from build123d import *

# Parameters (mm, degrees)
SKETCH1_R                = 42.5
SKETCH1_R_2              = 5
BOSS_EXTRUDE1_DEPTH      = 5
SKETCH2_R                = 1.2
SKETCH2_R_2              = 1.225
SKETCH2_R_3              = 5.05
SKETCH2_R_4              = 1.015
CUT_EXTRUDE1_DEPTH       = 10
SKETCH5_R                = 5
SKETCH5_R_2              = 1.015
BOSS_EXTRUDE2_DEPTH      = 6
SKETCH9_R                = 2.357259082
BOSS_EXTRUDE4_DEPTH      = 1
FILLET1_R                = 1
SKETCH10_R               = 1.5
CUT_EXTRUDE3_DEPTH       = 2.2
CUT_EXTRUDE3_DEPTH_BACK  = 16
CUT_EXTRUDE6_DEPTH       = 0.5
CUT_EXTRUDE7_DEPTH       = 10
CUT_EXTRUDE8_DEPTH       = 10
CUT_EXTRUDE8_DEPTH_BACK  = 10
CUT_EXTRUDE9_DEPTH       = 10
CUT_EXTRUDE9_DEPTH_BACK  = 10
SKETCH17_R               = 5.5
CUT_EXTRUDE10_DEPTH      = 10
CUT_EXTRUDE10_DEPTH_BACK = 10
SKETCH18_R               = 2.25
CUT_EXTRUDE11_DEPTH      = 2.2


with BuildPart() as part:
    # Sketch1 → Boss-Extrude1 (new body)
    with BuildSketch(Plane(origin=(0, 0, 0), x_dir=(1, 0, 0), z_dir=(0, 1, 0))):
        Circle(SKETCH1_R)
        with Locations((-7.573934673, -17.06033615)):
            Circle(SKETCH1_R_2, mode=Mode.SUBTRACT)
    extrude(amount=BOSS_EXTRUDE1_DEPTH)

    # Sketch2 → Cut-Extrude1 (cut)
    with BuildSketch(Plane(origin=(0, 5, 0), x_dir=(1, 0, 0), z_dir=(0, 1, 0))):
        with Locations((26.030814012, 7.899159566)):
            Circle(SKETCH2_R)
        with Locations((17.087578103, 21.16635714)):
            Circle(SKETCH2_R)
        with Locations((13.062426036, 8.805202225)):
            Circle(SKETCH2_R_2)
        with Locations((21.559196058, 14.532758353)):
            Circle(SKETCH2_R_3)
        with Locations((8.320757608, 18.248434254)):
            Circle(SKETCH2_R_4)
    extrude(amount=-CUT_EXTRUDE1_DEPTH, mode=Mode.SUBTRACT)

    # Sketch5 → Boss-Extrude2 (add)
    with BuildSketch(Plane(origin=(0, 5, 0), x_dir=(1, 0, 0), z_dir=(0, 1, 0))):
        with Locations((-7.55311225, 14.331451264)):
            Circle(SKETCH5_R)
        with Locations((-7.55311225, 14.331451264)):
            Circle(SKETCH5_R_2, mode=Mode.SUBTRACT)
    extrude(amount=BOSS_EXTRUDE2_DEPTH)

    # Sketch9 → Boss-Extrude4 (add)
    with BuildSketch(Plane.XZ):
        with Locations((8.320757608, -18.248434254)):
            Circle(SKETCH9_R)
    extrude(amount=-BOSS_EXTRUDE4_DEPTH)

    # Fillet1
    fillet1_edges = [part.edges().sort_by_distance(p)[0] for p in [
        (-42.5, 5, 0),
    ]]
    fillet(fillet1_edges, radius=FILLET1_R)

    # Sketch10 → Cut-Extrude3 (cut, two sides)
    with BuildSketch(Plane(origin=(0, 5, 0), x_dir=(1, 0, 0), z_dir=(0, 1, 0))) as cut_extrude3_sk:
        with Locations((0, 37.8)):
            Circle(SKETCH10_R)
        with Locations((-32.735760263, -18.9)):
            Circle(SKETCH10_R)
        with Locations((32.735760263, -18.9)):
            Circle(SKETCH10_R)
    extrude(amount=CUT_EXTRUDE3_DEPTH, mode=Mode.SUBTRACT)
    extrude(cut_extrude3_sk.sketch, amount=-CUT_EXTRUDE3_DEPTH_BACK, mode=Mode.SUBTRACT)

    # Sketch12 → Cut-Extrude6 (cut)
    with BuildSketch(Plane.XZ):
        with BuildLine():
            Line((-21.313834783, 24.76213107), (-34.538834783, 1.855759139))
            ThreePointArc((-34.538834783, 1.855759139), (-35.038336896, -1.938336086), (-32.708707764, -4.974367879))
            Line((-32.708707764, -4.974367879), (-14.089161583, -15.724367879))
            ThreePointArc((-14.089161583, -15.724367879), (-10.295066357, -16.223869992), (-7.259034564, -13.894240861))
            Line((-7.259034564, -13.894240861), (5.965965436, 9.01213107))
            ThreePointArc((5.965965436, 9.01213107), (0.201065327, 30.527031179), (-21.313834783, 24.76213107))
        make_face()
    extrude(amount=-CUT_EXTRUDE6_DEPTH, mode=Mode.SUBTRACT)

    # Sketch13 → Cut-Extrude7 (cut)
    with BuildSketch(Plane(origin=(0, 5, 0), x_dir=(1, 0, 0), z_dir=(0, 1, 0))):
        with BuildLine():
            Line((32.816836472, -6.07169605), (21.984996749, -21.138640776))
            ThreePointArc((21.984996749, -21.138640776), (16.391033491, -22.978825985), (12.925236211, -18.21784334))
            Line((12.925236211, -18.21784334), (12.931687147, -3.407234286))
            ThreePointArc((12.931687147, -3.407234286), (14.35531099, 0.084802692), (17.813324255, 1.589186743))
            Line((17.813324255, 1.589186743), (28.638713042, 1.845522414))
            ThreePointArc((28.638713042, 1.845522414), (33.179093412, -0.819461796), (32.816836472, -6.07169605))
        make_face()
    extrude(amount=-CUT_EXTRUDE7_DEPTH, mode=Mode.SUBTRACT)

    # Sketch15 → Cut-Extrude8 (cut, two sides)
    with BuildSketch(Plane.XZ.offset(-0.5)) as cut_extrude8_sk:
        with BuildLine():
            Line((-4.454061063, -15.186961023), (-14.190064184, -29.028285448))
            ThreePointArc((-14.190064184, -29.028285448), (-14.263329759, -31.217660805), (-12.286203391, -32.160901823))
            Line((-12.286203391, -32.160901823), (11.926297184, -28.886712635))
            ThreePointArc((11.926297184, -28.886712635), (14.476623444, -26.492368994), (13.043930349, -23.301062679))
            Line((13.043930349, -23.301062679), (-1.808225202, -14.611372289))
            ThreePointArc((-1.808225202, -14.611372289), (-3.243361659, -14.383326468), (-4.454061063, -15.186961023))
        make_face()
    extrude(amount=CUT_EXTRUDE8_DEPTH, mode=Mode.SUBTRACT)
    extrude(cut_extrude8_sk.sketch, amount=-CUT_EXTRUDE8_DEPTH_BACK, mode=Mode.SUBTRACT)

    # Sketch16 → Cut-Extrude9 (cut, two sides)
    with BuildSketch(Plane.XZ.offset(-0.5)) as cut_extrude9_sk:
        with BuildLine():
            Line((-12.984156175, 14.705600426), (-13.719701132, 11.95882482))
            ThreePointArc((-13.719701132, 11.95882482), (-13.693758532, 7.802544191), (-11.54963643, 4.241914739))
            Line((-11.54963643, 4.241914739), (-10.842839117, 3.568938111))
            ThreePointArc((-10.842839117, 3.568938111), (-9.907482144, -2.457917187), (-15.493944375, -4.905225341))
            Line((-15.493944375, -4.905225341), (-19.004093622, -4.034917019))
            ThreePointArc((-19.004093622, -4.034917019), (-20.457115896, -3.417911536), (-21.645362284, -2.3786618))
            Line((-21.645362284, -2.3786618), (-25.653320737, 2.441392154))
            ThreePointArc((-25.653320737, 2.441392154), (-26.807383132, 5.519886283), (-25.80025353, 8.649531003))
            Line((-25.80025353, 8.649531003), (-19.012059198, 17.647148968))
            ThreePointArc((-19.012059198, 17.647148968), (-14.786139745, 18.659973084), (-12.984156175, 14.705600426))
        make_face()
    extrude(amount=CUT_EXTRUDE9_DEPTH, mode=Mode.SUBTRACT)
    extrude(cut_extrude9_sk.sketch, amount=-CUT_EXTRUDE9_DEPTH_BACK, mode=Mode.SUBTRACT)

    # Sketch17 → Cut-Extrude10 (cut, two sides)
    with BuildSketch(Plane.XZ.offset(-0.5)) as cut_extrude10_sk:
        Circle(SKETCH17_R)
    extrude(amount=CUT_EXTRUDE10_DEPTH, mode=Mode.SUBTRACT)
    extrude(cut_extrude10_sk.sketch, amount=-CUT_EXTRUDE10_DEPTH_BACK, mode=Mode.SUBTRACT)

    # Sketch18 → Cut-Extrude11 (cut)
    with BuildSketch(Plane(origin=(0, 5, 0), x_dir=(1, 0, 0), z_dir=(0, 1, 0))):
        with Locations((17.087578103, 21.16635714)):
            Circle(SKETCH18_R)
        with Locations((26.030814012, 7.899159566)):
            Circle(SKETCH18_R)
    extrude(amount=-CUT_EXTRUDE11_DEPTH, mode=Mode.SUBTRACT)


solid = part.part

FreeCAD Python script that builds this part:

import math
import FreeCAD as App
import Part
import Sketcher
Q = App.Units.Quantity


def edges_at(feature, points):
    """Names of the edges that pass closest to the given points."""
    edges = feature.Shape.Edges
    near = lambda p: min(range(len(edges)), key=lambda i: edges[i].distToShape(Part.Vertex(*p))[0])
    return sorted({f"Edge{near(p) + 1}" for p in points})

doc = App.newDocument("Part")
params = doc.addObject("Spreadsheet::Sheet", "Params")
for row, (alias, value) in enumerate([
    ("sketch1_diameter", "85 mm"),
    ("sketch1_diameter2", "10 mm"),
    ("pad1_length", "5 mm"),
    ("sketch2_diameter", "2.4 mm"),
    ("sketch2_diameter2", "10.1 mm"),
    ("sketch2_diameter3", "2.45 mm"),
    ("sketch2_diameter4", "2.03 mm"),
    ("pocket1_length", "10 mm"),
    ("sketch3_diameter", "10 mm"),
    ("sketch3_diameter2", "2.03 mm"),
    ("pad2_length", "6 mm"),
    ("pad3_length", "1 mm"),
    ("fillet_radius", "1 mm"),
    ("sketch5_diameter", "3 mm"),
    ("sketch6_radius", "5 mm"),
    ("sketch6_radius2", "15.75 mm"),
    ("sketch6_length", "26.45 mm"),
    ("pocket3_length", "0.5 mm"),
    ("sketch7_radius", "5 mm"),
    ("pocket4_length", "10 mm"),
    ("sketch8_radius", "2 mm"),
    ("sketch8_radius2", "2 mm"),
    ("pocket5_length", "10 mm"),
    ("pocket5_length2", "10 mm"),
    ("sketch9_radius", "5 mm"),
    ("sketch10_diameter", "11 mm"),
    ("sketch11_diameter", "4.5 mm"),
    ("pocket8_length", "2.2 mm"),
], start=1):
    params.set(f"A{row}", alias)
    params.set(f"B{row}", "=" + value)
    params.setAlias(f"B{row}", alias)

body = doc.addObject("PartDesign::Body", "Body")

# Sketch on XZ plane
sketch1 = body.newObject("Sketcher::SketchObject", "Sketch")
sketch1.AttachmentSupport = (doc.getObject("XZ_Plane"), [""])
sketch1.MapMode = "FlatFace"
sketch1.addGeometry([
    Part.Circle(App.Vector(0, 0, 0), App.Vector(0, 0, 1), 42),
    Part.Circle(App.Vector(-8, 17, 0), App.Vector(0, 0, 1), 5),
], False)
sketch1.addConstraint([
    Sketcher.Constraint("Coincident", 0, 3, -1, 1),
    Sketcher.Constraint("Diameter", 0, 85.0),
    Sketcher.Constraint("Diameter", 1, 10.0),
    Sketcher.Constraint("DistanceX", 1, 3, -1, 1, 7.573935),
    Sketcher.Constraint("DistanceY", -1, 1, 1, 3, 17.060336),
])
sketch1.setExpression("Constraints[1]", "Params.sketch1_diameter")
sketch1.setExpression("Constraints[2]", "Params.sketch1_diameter2")
pad1 = body.newObject("PartDesign::Pad", "Pad")
pad1.Profile = sketch1
pad1.setExpression("Length", "Params.pad1_length")
pad1.Reversed = True

# Sketch on XZ plane
sketch2 = body.newObject("Sketcher::SketchObject", "Sketch001")
sketch2.AttachmentSupport = (doc.getObject("XZ_Plane"), [""])
sketch2.MapMode = "FlatFace"
sketch2.AttachmentOffset = App.Placement(App.Vector(0, 0, -5), App.Rotation())
sketch2.addGeometry([
    Part.Circle(App.Vector(26, -7.9, 0), App.Vector(0, 0, 1), 1.2),  # 0
    Part.Circle(App.Vector(17.1, -21.2, 0), App.Vector(0, 0, 1), 1.2),  # 1
    Part.Circle(App.Vector(13.1, -8.8, 0), App.Vector(0, 0, 1), 1.2),  # 2
    Part.Circle(App.Vector(21.6, -14.5, 0), App.Vector(0, 0, 1), 5),  # 3
    Part.Circle(App.Vector(8.3, -18.2, 0), App.Vector(0, 0, 1), 1),  # 4
], False)
sketch2.addConstraint([
    Sketcher.Constraint("Equal", 0, 1),
    Sketcher.Constraint("Diameter", 0, 2.4),
    Sketcher.Constraint("Diameter", 3, 10.1),
    Sketcher.Constraint("Diameter", 2, 2.45),
    Sketcher.Constraint("Diameter", 4, 2.03),
    Sketcher.Constraint("DistanceY", 3, 3, 0, 3, 6.633599),
    Sketcher.Constraint("DistanceY", 1, 3, 3, 3, 6.633599),
    Sketcher.Constraint("DistanceY", 0, 3, -1, 1, 7.89916),
    Sketcher.Constraint("DistanceX", -1, 1, 1, 3, 17.087578),
    Sketcher.Constraint("DistanceX", 2, 3, 3, 3, 8.49677),
    Sketcher.Constraint("DistanceX", 4, 3, 1, 3, 8.76682),
    Sketcher.Constraint("DistanceX", 4, 3, 2, 3, 4.741668),
    Sketcher.Constraint("DistanceX", -1, 1, 0, 3, 26.030814),
    Sketcher.Constraint("DistanceY", 2, 3, -1, 1, 8.805202),
    Sketcher.Constraint("DistanceY", 4, 3, -1, 1, 18.248434),
])
sketch2.setExpression("Constraints[1]", "Params.sketch2_diameter")
sketch2.setExpression("Constraints[2]", "Params.sketch2_diameter2")
sketch2.setExpression("Constraints[3]", "Params.sketch2_diameter3")
sketch2.setExpression("Constraints[4]", "Params.sketch2_diameter4")
pocket1 = body.newObject("PartDesign::Pocket", "Pocket")
pocket1.Profile = sketch2
pocket1.setExpression("Length", "Params.pocket1_length")
pocket1.Reversed = True

# Sketch on XZ plane
sketch3 = body.newObject("Sketcher::SketchObject", "Sketch002")
sketch3.AttachmentSupport = (doc.getObject("XZ_Plane"), [""])
sketch3.MapMode = "FlatFace"
sketch3.AttachmentOffset = App.Placement(App.Vector(0, 0, -5), App.Rotation())
sketch3.addGeometry([
    Part.Circle(App.Vector(-7.6, -14.3, 0), App.Vector(0, 0, 1), 5),
    Part.Circle(App.Vector(-7.6, -14.3, 0), App.Vector(0, 0, 1), 1),
], False)
sketch3.addConstraint([
    Sketcher.Constraint("Coincident", 1, 3, 0, 3),
    Sketcher.Constraint("Diameter", 0, 10.0),
    Sketcher.Constraint("Diameter", 1, 2.03),
    Sketcher.Constraint("DistanceY", 0, 3, -1, 1, 14.331451),
    Sketcher.Constraint("DistanceX", 0, 3, -1, 1, 7.553112),
])
sketch3.setExpression("Constraints[1]", "Params.sketch3_diameter")
sketch3.setExpression("Constraints[2]", "Params.sketch3_diameter2")
pad2 = body.newObject("PartDesign::Pad", "Pad001")
pad2.Profile = sketch3
pad2.setExpression("Length", "Params.pad2_length")
pad2.Reversed = True

# Sketch on XZ plane
sketch4 = body.newObject("Sketcher::SketchObject", "Sketch003")
sketch4.AttachmentSupport = (doc.getObject("XZ_Plane"), [""])
sketch4.MapMode = "FlatFace"
sketch4.addGeometry(Part.Circle(App.Vector(8.3, -18.2, 0), App.Vector(0, 0, 1), 2.4), False)
sketch4.addConstraint([
    Sketcher.Constraint("Diameter", 0, 4.714518),
    Sketcher.Constraint("DistanceX", -1, 1, 0, 3, 8.320758),
    Sketcher.Constraint("DistanceY", 0, 3, -1, 1, 18.248434),
])
pad3 = body.newObject("PartDesign::Pad", "Pad002")
pad3.Profile = sketch4
pad3.setExpression("Length", "Params.pad3_length")
pad3.Reversed = True
doc.recompute()

fillet = body.newObject("PartDesign::Fillet", "Fillet")
fillet.Base = (pad3, edges_at(pad3, [(-42.5, 5, 0)]))
fillet.setExpression("Radius", "Params.fillet_radius")

# Sketch on XZ plane
sketch5 = body.newObject("Sketcher::SketchObject", "Sketch004")
sketch5.AttachmentSupport = (doc.getObject("XZ_Plane"), [""])
sketch5.MapMode = "FlatFace"
sketch5.AttachmentOffset = App.Placement(App.Vector(0, 0, -5), App.Rotation())
sketch5.addGeometry([
    Part.Circle(App.Vector(0, -37.8, 0), App.Vector(0, 0, 1), 1.5),
    Part.Circle(App.Vector(-32.7, 18.9, 0), App.Vector(0, 0, 1), 1.5),
    Part.Circle(App.Vector(32.7, 18.9, 0), App.Vector(0, 0, 1), 1.5),
], False)
sketch5.addConstraint([
    Sketcher.Constraint("Equal", 0, 1),
    Sketcher.Constraint("Equal", 1, 2),
    Sketcher.Constraint("Symmetric", 1, 3, 2, 3, -2),
    Sketcher.Constraint("PointOnObject", 0, 3, -2),
    Sketcher.Constraint("Diameter", 0, 3.0),
    Sketcher.Constraint("DistanceY", 0, 3, -1, 1, 37.8),
    Sketcher.Constraint("DistanceY", -1, 1, 1, 3, 18.9),
    Sketcher.Constraint("DistanceX", 1, 3, -1, 1, 32.73576),
])
sketch5.setExpression("Constraints[4]", "Params.sketch5_diameter")
pocket2 = body.newObject("PartDesign::Pocket", "Pocket001")
pocket2.Profile = sketch5
pocket2.Type = "ThroughAll"
pocket2.Midplane = True

# Sketch on XZ plane
sketch6 = body.newObject("Sketcher::SketchObject", "Sketch005")
sketch6.AttachmentSupport = (doc.getObject("XZ_Plane"), [""])
sketch6.MapMode = "FlatFace"
sketch6.addGeometry([
    Part.LineSegment(App.Vector(-21.3, 24.8, 0), App.Vector(-34.5, 1.9, 0)),  # 0
    Part.ArcOfCircle(Part.Circle(App.Vector(-30.2, -0.6, 0), App.Vector(0, 0, 1), 5), math.radians(150), math.radians(240)),  # 1
    Part.LineSegment(App.Vector(-32.7, -5, 0), App.Vector(-14.1, -15.7, 0)),  # 2
    Part.ArcOfCircle(Part.Circle(App.Vector(-11.6, -11.4, 0), App.Vector(0, 0, 1), 5), math.radians(-120), math.radians(-30)),  # 3
    Part.LineSegment(App.Vector(-7.3, -13.9, 0), App.Vector(6, 9, 0)),  # 4
    Part.ArcOfCircle(Part.Circle(App.Vector(-7.7, 16.9, 0), App.Vector(0, 0, 1), 15.8), math.radians(-30), math.radians(150)),  # 5
], False)
sketch6.addConstraint([
    Sketcher.Constraint("Tangent", 0, 2, 1, 1),
    Sketcher.Constraint("Tangent", 1, 2, 2, 1),
    Sketcher.Constraint("Tangent", 2, 2, 3, 1),
    Sketcher.Constraint("Tangent", 3, 2, 4, 1),
    Sketcher.Constraint("Tangent", 4, 2, 5, 1),
    Sketcher.Constraint("Tangent", 5, 2, 0, 1),
    Sketcher.Constraint("Equal", 1, 3),
    Sketcher.Constraint("Perpendicular", 0, 2),
    Sketcher.Constraint("Perpendicular", 2, 4),
    Sketcher.Constraint("Radius", 1, 5.0),
    Sketcher.Constraint("Angle", 0, Q("-120 deg")),
    Sketcher.Constraint("Radius", 5, 15.75),
    Sketcher.Constraint("Distance", 0, 26.45),
    Sketcher.Constraint("DistanceY", 1, 3, -1, 1, 0.644241),
    Sketcher.Constraint("DistanceX", 3, 3, -1, 1, 11.589162),
])
sketch6.setExpression("Constraints[9]", "Params.sketch6_radius")
sketch6.setExpression("Constraints[11]", "Params.sketch6_radius2")
sketch6.setExpression("Constraints[12]", "Params.sketch6_length")
pocket3 = body.newObject("PartDesign::Pocket", "Pocket002")
pocket3.Profile = sketch6
pocket3.setExpression("Length", "Params.pocket3_length")

# Sketch on XZ plane
sketch7 = body.newObject("Sketcher::SketchObject", "Sketch006")
sketch7.AttachmentSupport = (doc.getObject("XZ_Plane"), [""])
sketch7.MapMode = "FlatFace"
sketch7.AttachmentOffset = App.Placement(App.Vector(0, 0, -5), App.Rotation())
sketch7.addGeometry([
    Part.LineSegment(App.Vector(22, 21, 0), App.Vector(33, 6, 0)),  # 0
    Part.ArcOfCircle(Part.Circle(App.Vector(29, 3, 0), App.Vector(0, 0, 1), 5), math.radians(-91), math.radians(36)),  # 1
    Part.LineSegment(App.Vector(29, -2, 0), App.Vector(18, -2, 0)),  # 2
    Part.ArcOfCircle(Part.Circle(App.Vector(18, 3, 0), App.Vector(0, 0, 1), 5), math.radians(-180), math.radians(-91)),  # 3
    Part.LineSegment(App.Vector(13, 3, 0), App.Vector(13, 18, 0)),  # 4
    Part.ArcOfCircle(Part.Circle(App.Vector(18, 18, 0), App.Vector(0, 0, 1), 5), math.radians(36), math.radians(180)),  # 5
], False)
sketch7.addConstraint([
    Sketcher.Constraint("Tangent", 0, 2, 1, 2),
    Sketcher.Constraint("Tangent", 1, 1, 2, 1),
    Sketcher.Constraint("Tangent", 2, 2, 3, 2),
    Sketcher.Constraint("Tangent", 3, 1, 4, 1),
    Sketcher.Constraint("Tangent", 4, 2, 5, 2),
    Sketcher.Constraint("Tangent", 5, 1, 0, 1),
    Sketcher.Constraint("Equal", 1, 3),
    Sketcher.Constraint("Equal", 3, 5),
    Sketcher.Constraint("Radius", 1, 5.0),
    Sketcher.Constraint("DistanceX", 5, 3, 0, 2, 14.891601),
    Sketcher.Constraint("DistanceY", 1, 1, 1, 3, 4.998599),
    Sketcher.Constraint("Distance", 4, 14.81061),
    Sketcher.Constraint("DistanceY", -1, 1, 5, 3, 18.220021),
    Sketcher.Constraint("DistanceX", 3, 3, 1, 3, 10.825389),
    Sketcher.Constraint("DistanceX", -1, 1, 1, 3, 28.757075),
])
sketch7.setExpression("Constraints[8]", "Params.sketch7_radius")
pocket4 = body.newObject("PartDesign::Pocket", "Pocket003")
pocket4.Profile = sketch7
pocket4.setExpression("Length", "Params.pocket4_length")
pocket4.Reversed = True

# Sketch on XZ plane
sketch8 = body.newObject("Sketcher::SketchObject", "Sketch007")
sketch8.AttachmentSupport = (doc.getObject("XZ_Plane"), [""])
sketch8.MapMode = "FlatFace"
sketch8.AttachmentOffset = App.Placement(App.Vector(0, 0, -0.5), App.Rotation())
sketch8.addGeometry([
    Part.LineSegment(App.Vector(-4.454061, -15.186961, 0), App.Vector(-14.190064, -29.028285, 0)),  # 0
    Part.ArcOfCircle(Part.Circle(App.Vector(-12.554218, -30.178941, 0), App.Vector(0, 0, 1), 2), math.radians(144.877404), math.radians(277.701233)),  # 1
    Part.LineSegment(App.Vector(-12.286203, -32.160902, 0), App.Vector(11.926297, -28.886713, 0)),  # 2
    Part.ArcOfCircle(Part.Circle(App.Vector(11.522588, -25.901296, 0), App.Vector(0, 0, 1), 3.01259), math.radians(-82.298767), math.radians(59.668976)),  # 3
    Part.LineSegment(App.Vector(13.04393, -23.301063, 0), App.Vector(-1.808225, -14.611372, 0)),  # 4
    Part.ArcOfCircle(Part.Circle(App.Vector(-2.818215, -16.337617, 0), App.Vector(0, 0, 1), 2), math.radians(59.668976), math.radians(144.877403)),  # 5
], False)
sketch8.addConstraint([
    Sketcher.Constraint("Coincident", 0, 2, 1, 1),
    Sketcher.Constraint("Coincident", 1, 2, 2, 1),
    Sketcher.Constraint("Coincident", 2, 2, 3, 1),
    Sketcher.Constraint("Coincident", 3, 2, 4, 1),
    Sketcher.Constraint("Coincident", 4, 2, 5, 1),
    Sketcher.Constraint("Coincident", 5, 2, 0, 1),
    Sketcher.Constraint("Radius", 1, 2.0),
    Sketcher.Constraint("Radius", 5, 2.0),
    Sketcher.Constraint("Radius", 3, 3.01259),
    Sketcher.Constraint("DistanceY", 1, 2, -1, 1, 32.160902),
    Sketcher.Constraint("DistanceX", 1, 2, 2, 2, 24.212501),
    Sketcher.Constraint("Distance", 0, 16.92253),
    Sketcher.Constraint("DistanceX", 1, 3, -1, 1, 12.554218),
    Sketcher.Constraint("DistanceY", 1, 3, -1, 1, 30.178941),
    Sketcher.Constraint("DistanceX", -1, 1, 3, 2, 13.04393),
    Sketcher.Constraint("DistanceX", 5, 2, -1, 1, 4.454061),
    Sketcher.Constraint("DistanceY", 5, 2, -1, 1, 15.186961),
    Sketcher.Constraint("DistanceY", 3, 3, 5, 3, 9.563679),
    Sketcher.Constraint("DistanceX", 0, 2, 5, 3, 11.371849),
    Sketcher.Constraint("DistanceX", 0, 2, 3, 3, 25.712652),
    Sketcher.Constraint("DistanceX", 5, 3, 4, 2, 1.00999),
])
sketch8.setExpression("Constraints[6]", "Params.sketch8_radius")
sketch8.setExpression("Constraints[7]", "Params.sketch8_radius2")
pocket5 = body.newObject("PartDesign::Pocket", "Pocket004")
pocket5.Profile = sketch8
pocket5.Type = "TwoLengths"
pocket5.setExpression("Length", "Params.pocket5_length")
pocket5.setExpression("Length2", "Params.pocket5_length2")
pocket5.Reversed = True

# Sketch on XZ plane
sketch9 = body.newObject("Sketcher::SketchObject", "Sketch008")
sketch9.AttachmentSupport = (doc.getObject("XZ_Plane"), [""])
sketch9.MapMode = "FlatFace"
sketch9.AttachmentOffset = App.Placement(App.Vector(0, 0, -0.5), App.Rotation())
sketch9.addGeometry([
    Part.LineSegment(App.Vector(-13.7, 12, 0), App.Vector(-13, 14.7, 0)),  # 0
    Part.ArcOfCircle(Part.Circle(App.Vector(-16.3, 15.6, 0), App.Vector(0, 0, 1), 3.4), math.radians(-15), math.radians(143)),  # 1
    Part.LineSegment(App.Vector(-19, 17.6, 0), App.Vector(-25.8, 8.6, 0)),  # 2
    Part.ArcOfCircle(Part.Circle(App.Vector(-21.8, 5.6, 0), App.Vector(0, 0, 1), 5), math.radians(143), math.radians(220)),  # 3
    Part.LineSegment(App.Vector(-25.7, 2.4, 0), App.Vector(-21.6, -2.4, 0)),  # 4
    Part.ArcOfCircle(Part.Circle(App.Vector(-17.8, 0.8, 0), App.Vector(0, 0, 1), 5), math.radians(-140), math.radians(-104)),  # 5
    Part.LineSegment(App.Vector(-19, -4, 0), App.Vector(-15.5, -4.9, 0)),  # 6
    Part.ArcOfCircle(Part.Circle(App.Vector(-14.3, -0.1, 0), App.Vector(0, 0, 1), 5), math.radians(-104), math.radians(46)),  # 7
    Part.LineSegment(App.Vector(-10.8, 3.6, 0), App.Vector(-11.5, 4.2, 0)),  # 8
    Part.ArcOfCircle(Part.Circle(App.Vector(-6.1, 9.9, 0), App.Vector(0, 0, 1), 7.9), math.radians(165), math.radians(226)),  # 9
], False)
sketch9.addConstraint([
    Sketcher.Constraint("Tangent", 0, 2, 1, 1),
    Sketcher.Constraint("Tangent", 1, 2, 2, 1),
    Sketcher.Constraint("Tangent", 2, 2, 3, 1),
    Sketcher.Constraint("Tangent", 3, 2, 4, 1),
    Sketcher.Constraint("Tangent", 4, 2, 5, 1),
    Sketcher.Constraint("Tangent", 5, 2, 6, 1),
    Sketcher.Constraint("Tangent", 6, 2, 7, 1),
    Sketcher.Constraint("Tangent", 7, 2, 8, 1),
    Sketcher.Constraint("Tangent", 8, 2, 9, 2),
    Sketcher.Constraint("Tangent", 9, 1, 0, 1),
    Sketcher.Constraint("Equal", 3, 5),
    Sketcher.Constraint("Equal", 5, 7),
    Sketcher.Constraint("Radius", 3, 5.0),
    Sketcher.Constraint("Radius", 1, 3.416676),
    Sketcher.Constraint("Radius", 9, 7.851224),
    Sketcher.Constraint("DistanceY", -1, 1, 0, 2, 14.7056),
    Sketcher.Constraint("DistanceX", 9, 1, -1, 1, 13.719701),
    Sketcher.Constraint("DistanceY", 3, 2, 3, 3, 3.1968),
    Sketcher.Constraint("DistanceY", 5, 3, 7, 2, 2.7508),
    Sketcher.Constraint("Distance", 8, 0.975941),
    Sketcher.Constraint("DistanceY", -1, 1, 3, 3, 5.638192),
    Sketcher.Constraint("DistanceY", -1, 1, 5, 3, 0.818138),
    Sketcher.Constraint("DistanceY", 7, 3, -1, 1, 0.05217),
    Sketcher.Constraint("DistanceX", 9, 3, -1, 1, 6.13569),
    Sketcher.Constraint("DistanceX", 1, 2, -1, 1, 19.012059),
])
sketch9.setExpression("Constraints[12]", "Params.sketch9_radius")
pocket6 = body.newObject("PartDesign::Pocket", "Pocket005")
pocket6.Profile = sketch9
pocket6.Type = "ThroughAll"
pocket6.Midplane = True

# Sketch on XZ plane
sketch10 = body.newObject("Sketcher::SketchObject", "Sketch009")
sketch10.AttachmentSupport = (doc.getObject("XZ_Plane"), [""])
sketch10.MapMode = "FlatFace"
sketch10.AttachmentOffset = App.Placement(App.Vector(0, 0, -0.5), App.Rotation())
sketch10.addGeometry(Part.Circle(App.Vector(0, 0, 0), App.Vector(0, 0, 1), 6), False)
sketch10.addConstraint([
    Sketcher.Constraint("Coincident", 0, 3, -1, 1),
    Sketcher.Constraint("Diameter", 0, 11.0),
])
sketch10.setExpression("Constraints[1]", "Params.sketch10_diameter")
pocket7 = body.newObject("PartDesign::Pocket", "Pocket006")
pocket7.Profile = sketch10
pocket7.Type = "ThroughAll"
pocket7.Midplane = True

# Sketch on XZ plane
sketch11 = body.newObject("Sketcher::SketchObject", "Sketch010")
sketch11.AttachmentSupport = (doc.getObject("XZ_Plane"), [""])
sketch11.MapMode = "FlatFace"
sketch11.AttachmentOffset = App.Placement(App.Vector(0, 0, -5), App.Rotation())
sketch11.addGeometry([
    Part.Circle(App.Vector(17.1, -21.2, 0), App.Vector(0, 0, 1), 2.2),
    Part.Circle(App.Vector(26, -7.9, 0), App.Vector(0, 0, 1), 2.2),
], False)
sketch11.addConstraint([
    Sketcher.Constraint("Equal", 0, 1),
    Sketcher.Constraint("Diameter", 0, 4.5),
    Sketcher.Constraint("DistanceX", -1, 1, 0, 3, 17.087578),
    Sketcher.Constraint("DistanceY", 1, 3, -1, 1, 7.89916),
    Sketcher.Constraint("DistanceY", 0, 3, -1, 1, 21.166357),
    Sketcher.Constraint("DistanceX", -1, 1, 1, 3, 26.030814),
])
sketch11.setExpression("Constraints[1]", "Params.sketch11_diameter")
pocket8 = body.newObject("PartDesign::Pocket", "Pocket007")
pocket8.Profile = sketch11
pocket8.setExpression("Length", "Params.pocket8_length")
pocket8.Reversed = True

doc.recompute()
